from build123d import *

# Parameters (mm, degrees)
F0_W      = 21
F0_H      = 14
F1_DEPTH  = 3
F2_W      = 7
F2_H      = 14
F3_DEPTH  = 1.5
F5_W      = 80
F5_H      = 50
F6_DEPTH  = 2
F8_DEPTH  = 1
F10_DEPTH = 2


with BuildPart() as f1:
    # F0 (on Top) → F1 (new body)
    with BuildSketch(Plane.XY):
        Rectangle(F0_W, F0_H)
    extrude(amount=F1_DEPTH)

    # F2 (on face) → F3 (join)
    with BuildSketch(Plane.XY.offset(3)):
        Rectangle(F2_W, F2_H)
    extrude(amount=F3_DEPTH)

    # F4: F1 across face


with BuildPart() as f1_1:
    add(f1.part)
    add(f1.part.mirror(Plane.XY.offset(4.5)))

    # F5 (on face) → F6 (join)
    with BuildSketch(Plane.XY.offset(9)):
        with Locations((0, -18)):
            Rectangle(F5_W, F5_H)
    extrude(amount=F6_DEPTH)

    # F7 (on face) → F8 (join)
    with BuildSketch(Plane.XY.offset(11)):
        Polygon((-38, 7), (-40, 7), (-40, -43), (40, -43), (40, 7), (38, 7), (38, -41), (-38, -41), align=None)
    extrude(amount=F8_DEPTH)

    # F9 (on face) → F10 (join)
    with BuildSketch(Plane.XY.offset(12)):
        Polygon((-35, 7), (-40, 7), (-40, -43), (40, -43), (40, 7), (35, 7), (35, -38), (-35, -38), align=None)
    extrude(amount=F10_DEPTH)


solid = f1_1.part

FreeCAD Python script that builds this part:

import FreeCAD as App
import Part
import Sketcher
from FreeCAD import Vector

doc = App.newDocument("Part")
params = doc.addObject("Spreadsheet::Sheet", "Params")
for row, (alias, value) in enumerate([
    ("sketch1_width", "21 mm"),
    ("sketch1_height", "14 mm"),
    ("pad1_length", "3 mm"),
    ("sketch2_width", "7 mm"),
    ("sketch2_height", "14 mm"),
    ("pad2_length", "1.5 mm"),
    ("sketch3_width", "80 mm"),
    ("sketch3_height", "50 mm"),
    ("pad3_length", "2 mm"),
    ("sketch4_width", "2 mm"),
    ("sketch4_width2", "80 mm"),
    ("sketch4_height", "50 mm"),
    ("sketch4_height2", "48 mm"),
    ("pad4_length", "1 mm"),
    ("sketch5_width", "5 mm"),
    ("sketch5_width2", "80 mm"),
    ("sketch5_height", "50 mm"),
    ("sketch5_height2", "45 mm"),
    ("pad5_length", "2 mm"),
], start=1):
    params.set(f"A{row}", alias)
    params.set(f"B{row}", "=" + value)
    params.setAlias(f"B{row}", alias)

body = doc.addObject("PartDesign::Body", "Body")

sketch1 = body.newObject("Sketcher::SketchObject", "Sketch")
sketch1.AttachmentSupport = (doc.getObject("XY_Plane"), [""])
sketch1.MapMode = "FlatFace"
sketch1.addGeometry([
    Part.LineSegment(Vector(-10, 7, 0), Vector(-10, -7, 0)),
    Part.LineSegment(Vector(-10, -7, 0), Vector(10, -7, 0)),
    Part.LineSegment(Vector(10, -7, 0), Vector(10, 7, 0)),
    Part.LineSegment(Vector(10, 7, 0), Vector(-10, 7, 0)),
], False)
sketch1.addConstraint([
    Sketcher.Constraint("Coincident", 0, 2, 1, 1),
    Sketcher.Constraint("Coincident", 1, 2, 2, 1),
    Sketcher.Constraint("Coincident", 2, 2, 3, 1),
    Sketcher.Constraint("Coincident", 3, 2, 0, 1),
    Sketcher.Constraint("Vertical", 0),
    Sketcher.Constraint("Horizontal", 1),
    Sketcher.Constraint("Vertical", 2),
    Sketcher.Constraint("Horizontal", 3),
    Sketcher.Constraint("Symmetric", 0, 2, 2, 2, -1, 1),
    Sketcher.Constraint("DistanceX", 1, 1, 1, 2, 21.0),
    Sketcher.Constraint("DistanceY", 0, 2, 0, 1, 14.0),
])
sketch1.setExpression("Constraints[9]", "Params.sketch1_width")
sketch1.setExpression("Constraints[10]", "Params.sketch1_height")
pad1 = body.newObject("PartDesign::Pad", "Pad")
pad1.Profile = sketch1
pad1.setExpression("Length", "Params.pad1_length")

sketch2 = body.newObject("Sketcher::SketchObject", "Sketch001")
sketch2.AttachmentSupport = (doc.getObject("XY_Plane"), [""])
sketch2.MapMode = "FlatFace"
sketch2.AttachmentOffset = App.Placement(Vector(0, 0, 3), App.Rotation())
sketch2.addGeometry([
    Part.LineSegment(Vector(-4, 7, 0), Vector(-4, -7, 0)),
    Part.LineSegment(Vector(-4, -7, 0), Vector(4, -7, 0)),
    Part.LineSegment(Vector(4, -7, 0), Vector(4, 7, 0)),
    Part.LineSegment(Vector(4, 7, 0), Vector(-4, 7, 0)),
], False)
sketch2.addConstraint([
    Sketcher.Constraint("Coincident", 0, 2, 1, 1),
    Sketcher.Constraint("Coincident", 1, 2, 2, 1),
    Sketcher.Constraint("Coincident", 2, 2, 3, 1),
    Sketcher.Constraint("Coincident", 3, 2, 0, 1),
    Sketcher.Constraint("Vertical", 0),
    Sketcher.Constraint("Horizontal", 1),
    Sketcher.Constraint("Vertical", 2),
    Sketcher.Constraint("Horizontal", 3),
    Sketcher.Constraint("Symmetric", 0, 2, 2, 2, -1, 1),
    Sketcher.Constraint("DistanceX", 1, 1, 1, 2, 7.0),
    Sketcher.Constraint("DistanceY", 0, 2, 0, 1, 14.0),
])
sketch2.setExpression("Constraints[9]", "Params.sketch2_width")
sketch2.setExpression("Constraints[10]", "Params.sketch2_height")
pad2 = body.newObject("PartDesign::Pad", "Pad001")
pad2.Profile = sketch2
pad2.setExpression("Length", "Params.pad2_length")
body2 = doc.addObject("PartDesign::Body", "Body001")
doc.recompute()

body2.BaseFeature = body
doc.recompute()

mirroring = doc.addObject("Part::Mirroring", "Mirroring")
mirroring.Source = body
mirroring.Base = Vector(0, 0, 4.5)
mirroring.Normal = Vector(0, 0, 1)
body3 = doc.addObject("PartDesign::Body", "Body002")
body3.BaseFeature = mirroring
boolean = body2.newObject("PartDesign::Boolean", "Boolean")
boolean.Type = "Fuse"
boolean.addObjects([body3])
doc.recompute()

sketch3 = body2.newObject("Sketcher::SketchObject", "Sketch002")
sketch3.AttachmentSupport = (doc.getObject("XY_Plane001"), [""])
sketch3.MapMode = "FlatFace"
sketch3.AttachmentOffset = App.Placement(Vector(0, 0, 9), App.Rotation())
sketch3.addGeometry([
    Part.LineSegment(Vector(-40, 7, 0), Vector(-40, -43, 0)),
    Part.LineSegment(Vector(-40, -43, 0), Vector(40, -43, 0)),
    Part.LineSegment(Vector(40, -43, 0), Vector(40, 7, 0)),
    Part.LineSegment(Vector(40, 7, 0), Vector(-40, 7, 0)),
], False)
sketch3.addConstraint([
    Sketcher.Constraint("Coincident", 0, 2, 1, 1),
    Sketcher.Constraint("Coincident", 1, 2, 2, 1),
    Sketcher.Constraint("Coincident", 2, 2, 3, 1),
    Sketcher.Constraint("Coincident", 3, 2, 0, 1),
    Sketcher.Constraint("Vertical", 0),
    Sketcher.Constraint("Horizontal", 1),
    Sketcher.Constraint("Vertical", 2),
    Sketcher.Constraint("Horizontal", 3),
    Sketcher.Constraint("DistanceX", 1, 1, 1, 2, 80.0),
    Sketcher.Constraint("DistanceY", 0, 2, 0, 1, 50.0),
    Sketcher.Constraint("DistanceX", 0, 2, -1, 1, 40.0),
    Sketcher.Constraint("DistanceY", 0, 2, -1, 1, 43.0),
])
sketch3.setExpression("Constraints[8]", "Params.sketch3_width")
sketch3.setExpression("Constraints[9]", "Params.sketch3_height")
pad3 = body2.newObject("PartDesign::Pad", "Pad002")
pad3.Profile = sketch3
pad3.setExpression("Length", "Params.pad3_length")

sketch4 = body2.newObject("Sketcher::SketchObject", "Sketch003")
sketch4.AttachmentSupport = (doc.getObject("XY_Plane001"), [""])
sketch4.MapMode = "FlatFace"
sketch4.AttachmentOffset = App.Placement(Vector(0, 0, 11), App.Rotation())
sketch4.addGeometry([
    Part.LineSegment(Vector(-38, 7, 0), Vector(-40, 7, 0)),
    Part.LineSegment(Vector(-40, 7, 0), Vector(-40, -43, 0)),
    Part.LineSegment(Vector(-40, -43, 0), Vector(40, -43, 0)),
    Part.LineSegment(Vector(40, -43, 0), Vector(40, 7, 0)),
    Part.LineSegment(Vector(40, 7, 0), Vector(38, 7, 0)),
    Part.LineSegment(Vector(38, 7, 0), Vector(38, -41, 0)),
    Part.LineSegment(Vector(38, -41, 0), Vector(-38, -41, 0)),
    Part.LineSegment(Vector(-38, -41, 0), Vector(-38, 7, 0)),
], False)
sketch4.addConstraint([
    Sketcher.Constraint("Coincident", 0, 2, 1, 1),
    Sketcher.Constraint("Coincident", 1, 2, 2, 1),
    Sketcher.Constraint("Coincident", 2, 2, 3, 1),
    Sketcher.Constraint("Coincident", 3, 2, 4, 1),
    Sketcher.Constraint("Coincident", 4, 2, 5, 1),
    Sketcher.Constraint("Coincident", 5, 2, 6, 1),
    Sketcher.Constraint("Coincident", 6, 2, 7, 1),
    Sketcher.Constraint("Coincident", 7, 2, 0, 1),
    Sketcher.Constraint("Horizontal", 0),
    Sketcher.Constraint("Vertical", 1),
    Sketcher.Constraint("Horizontal", 2),
    Sketcher.Constraint("Vertical", 3),
    Sketcher.Constraint("Horizontal", 4),
    Sketcher.Constraint("Vertical", 5),
    Sketcher.Constraint("Horizontal", 6),
    Sketcher.Constraint("Vertical", 7),
    Sketcher.Constraint("Symmetric", 0, 2, 3, 2, -2),
    Sketcher.Constraint("Equal", 0, 4),
    Sketcher.Constraint("DistanceX", 0, 2, 0, 1, 2.0),
    Sketcher.Constraint("DistanceX", 2, 1, 2, 2, 80.0),
    Sketcher.Constraint("DistanceY", 1, 2, 1, 1, 50.0),
    Sketcher.Constraint("DistanceY", 5, 2, 5, 1, 48.0),
    Sketcher.Constraint("DistanceY", -1, 1, 0, 2, 7.0),
])
sketch4.setExpression("Constraints[18]", "Params.sketch4_width")
sketch4.setExpression("Constraints[19]", "Params.sketch4_width2")
sketch4.setExpression("Constraints[20]", "Params.sketch4_height")
sketch4.setExpression("Constraints[21]", "Params.sketch4_height2")
pad4 = body2.newObject("PartDesign::Pad", "Pad003")
pad4.Profile = sketch4
pad4.setExpression("Length", "Params.pad4_length")

sketch5 = body2.newObject("Sketcher::SketchObject", "Sketch004")
sketch5.AttachmentSupport = (doc.getObject("XY_Plane001"), [""])
sketch5.MapMode = "FlatFace"
sketch5.AttachmentOffset = App.Placement(Vector(0, 0, 12), App.Rotation())
sketch5.addGeometry([
    Part.LineSegment(Vector(-35, 7, 0), Vector(-40, 7, 0)),
    Part.LineSegment(Vector(-40, 7, 0), Vector(-40, -43, 0)),
    Part.LineSegment(Vector(-40, -43, 0), Vector(40, -43, 0)),
    Part.LineSegment(Vector(40, -43, 0), Vector(40, 7, 0)),
    Part.LineSegment(Vector(40, 7, 0), Vector(35, 7, 0)),
    Part.LineSegment(Vector(35, 7, 0), Vector(35, -38, 0)),
    Part.LineSegment(Vector(35, -38, 0), Vector(-35, -38, 0)),
    Part.LineSegment(Vector(-35, -38, 0), Vector(-35, 7, 0)),
], False)
sketch5.addConstraint([
    Sketcher.Constraint("Coincident", 0, 2, 1, 1),
    Sketcher.Constraint("Coincident", 1, 2, 2, 1),
    Sketcher.Constraint("Coincident", 2, 2, 3, 1),
    Sketcher.Constraint("Coincident", 3, 2, 4, 1),
    Sketcher.Constraint("Coincident", 4, 2, 5, 1),
    Sketcher.Constraint("Coincident", 5, 2, 6, 1),
    Sketcher.Constraint("Coincident", 6, 2, 7, 1),
    Sketcher.Constraint("Coincident", 7, 2, 0, 1),
    Sketcher.Constraint("Horizontal", 0),
    Sketcher.Constraint("Vertical", 1),
    Sketcher.Constraint("Horizontal", 2),
    Sketcher.Constraint("Vertical", 3),
    Sketcher.Constraint("Horizontal", 4),
    Sketcher.Constraint("Vertical", 5),
    Sketcher.Constraint("Horizontal", 6),
    Sketcher.Constraint("Vertical", 7),
    Sketcher.Constraint("Symmetric", 0, 2, 3, 2, -2),
    Sketcher.Constraint("Equal", 0, 4),
    Sketcher.Constraint("DistanceX", 0, 2, 0, 1, 5.0),
    Sketcher.Constraint("DistanceX", 2, 1, 2, 2, 80.0),
    Sketcher.Constraint("DistanceY", 1, 2, 1, 1, 50.0),
    Sketcher.Constraint("DistanceY", 5, 2, 5, 1, 45.0),
    Sketcher.Constraint("DistanceY", -1, 1, 0, 2, 7.0),
])
sketch5.setExpression("Constraints[18]", "Params.sketch5_width")
sketch5.setExpression("Constraints[19]", "Params.sketch5_width2")
sketch5.setExpression("Constraints[20]", "Params.sketch5_height")
sketch5.setExpression("Constraints[21]", "Params.sketch5_height2")
pad5 = body2.newObject("PartDesign::Pad", "Pad004")
pad5.Profile = sketch5
pad5.setExpression("Length", "Params.pad5_length")
mirroring.Visibility = False

doc.recompute()
